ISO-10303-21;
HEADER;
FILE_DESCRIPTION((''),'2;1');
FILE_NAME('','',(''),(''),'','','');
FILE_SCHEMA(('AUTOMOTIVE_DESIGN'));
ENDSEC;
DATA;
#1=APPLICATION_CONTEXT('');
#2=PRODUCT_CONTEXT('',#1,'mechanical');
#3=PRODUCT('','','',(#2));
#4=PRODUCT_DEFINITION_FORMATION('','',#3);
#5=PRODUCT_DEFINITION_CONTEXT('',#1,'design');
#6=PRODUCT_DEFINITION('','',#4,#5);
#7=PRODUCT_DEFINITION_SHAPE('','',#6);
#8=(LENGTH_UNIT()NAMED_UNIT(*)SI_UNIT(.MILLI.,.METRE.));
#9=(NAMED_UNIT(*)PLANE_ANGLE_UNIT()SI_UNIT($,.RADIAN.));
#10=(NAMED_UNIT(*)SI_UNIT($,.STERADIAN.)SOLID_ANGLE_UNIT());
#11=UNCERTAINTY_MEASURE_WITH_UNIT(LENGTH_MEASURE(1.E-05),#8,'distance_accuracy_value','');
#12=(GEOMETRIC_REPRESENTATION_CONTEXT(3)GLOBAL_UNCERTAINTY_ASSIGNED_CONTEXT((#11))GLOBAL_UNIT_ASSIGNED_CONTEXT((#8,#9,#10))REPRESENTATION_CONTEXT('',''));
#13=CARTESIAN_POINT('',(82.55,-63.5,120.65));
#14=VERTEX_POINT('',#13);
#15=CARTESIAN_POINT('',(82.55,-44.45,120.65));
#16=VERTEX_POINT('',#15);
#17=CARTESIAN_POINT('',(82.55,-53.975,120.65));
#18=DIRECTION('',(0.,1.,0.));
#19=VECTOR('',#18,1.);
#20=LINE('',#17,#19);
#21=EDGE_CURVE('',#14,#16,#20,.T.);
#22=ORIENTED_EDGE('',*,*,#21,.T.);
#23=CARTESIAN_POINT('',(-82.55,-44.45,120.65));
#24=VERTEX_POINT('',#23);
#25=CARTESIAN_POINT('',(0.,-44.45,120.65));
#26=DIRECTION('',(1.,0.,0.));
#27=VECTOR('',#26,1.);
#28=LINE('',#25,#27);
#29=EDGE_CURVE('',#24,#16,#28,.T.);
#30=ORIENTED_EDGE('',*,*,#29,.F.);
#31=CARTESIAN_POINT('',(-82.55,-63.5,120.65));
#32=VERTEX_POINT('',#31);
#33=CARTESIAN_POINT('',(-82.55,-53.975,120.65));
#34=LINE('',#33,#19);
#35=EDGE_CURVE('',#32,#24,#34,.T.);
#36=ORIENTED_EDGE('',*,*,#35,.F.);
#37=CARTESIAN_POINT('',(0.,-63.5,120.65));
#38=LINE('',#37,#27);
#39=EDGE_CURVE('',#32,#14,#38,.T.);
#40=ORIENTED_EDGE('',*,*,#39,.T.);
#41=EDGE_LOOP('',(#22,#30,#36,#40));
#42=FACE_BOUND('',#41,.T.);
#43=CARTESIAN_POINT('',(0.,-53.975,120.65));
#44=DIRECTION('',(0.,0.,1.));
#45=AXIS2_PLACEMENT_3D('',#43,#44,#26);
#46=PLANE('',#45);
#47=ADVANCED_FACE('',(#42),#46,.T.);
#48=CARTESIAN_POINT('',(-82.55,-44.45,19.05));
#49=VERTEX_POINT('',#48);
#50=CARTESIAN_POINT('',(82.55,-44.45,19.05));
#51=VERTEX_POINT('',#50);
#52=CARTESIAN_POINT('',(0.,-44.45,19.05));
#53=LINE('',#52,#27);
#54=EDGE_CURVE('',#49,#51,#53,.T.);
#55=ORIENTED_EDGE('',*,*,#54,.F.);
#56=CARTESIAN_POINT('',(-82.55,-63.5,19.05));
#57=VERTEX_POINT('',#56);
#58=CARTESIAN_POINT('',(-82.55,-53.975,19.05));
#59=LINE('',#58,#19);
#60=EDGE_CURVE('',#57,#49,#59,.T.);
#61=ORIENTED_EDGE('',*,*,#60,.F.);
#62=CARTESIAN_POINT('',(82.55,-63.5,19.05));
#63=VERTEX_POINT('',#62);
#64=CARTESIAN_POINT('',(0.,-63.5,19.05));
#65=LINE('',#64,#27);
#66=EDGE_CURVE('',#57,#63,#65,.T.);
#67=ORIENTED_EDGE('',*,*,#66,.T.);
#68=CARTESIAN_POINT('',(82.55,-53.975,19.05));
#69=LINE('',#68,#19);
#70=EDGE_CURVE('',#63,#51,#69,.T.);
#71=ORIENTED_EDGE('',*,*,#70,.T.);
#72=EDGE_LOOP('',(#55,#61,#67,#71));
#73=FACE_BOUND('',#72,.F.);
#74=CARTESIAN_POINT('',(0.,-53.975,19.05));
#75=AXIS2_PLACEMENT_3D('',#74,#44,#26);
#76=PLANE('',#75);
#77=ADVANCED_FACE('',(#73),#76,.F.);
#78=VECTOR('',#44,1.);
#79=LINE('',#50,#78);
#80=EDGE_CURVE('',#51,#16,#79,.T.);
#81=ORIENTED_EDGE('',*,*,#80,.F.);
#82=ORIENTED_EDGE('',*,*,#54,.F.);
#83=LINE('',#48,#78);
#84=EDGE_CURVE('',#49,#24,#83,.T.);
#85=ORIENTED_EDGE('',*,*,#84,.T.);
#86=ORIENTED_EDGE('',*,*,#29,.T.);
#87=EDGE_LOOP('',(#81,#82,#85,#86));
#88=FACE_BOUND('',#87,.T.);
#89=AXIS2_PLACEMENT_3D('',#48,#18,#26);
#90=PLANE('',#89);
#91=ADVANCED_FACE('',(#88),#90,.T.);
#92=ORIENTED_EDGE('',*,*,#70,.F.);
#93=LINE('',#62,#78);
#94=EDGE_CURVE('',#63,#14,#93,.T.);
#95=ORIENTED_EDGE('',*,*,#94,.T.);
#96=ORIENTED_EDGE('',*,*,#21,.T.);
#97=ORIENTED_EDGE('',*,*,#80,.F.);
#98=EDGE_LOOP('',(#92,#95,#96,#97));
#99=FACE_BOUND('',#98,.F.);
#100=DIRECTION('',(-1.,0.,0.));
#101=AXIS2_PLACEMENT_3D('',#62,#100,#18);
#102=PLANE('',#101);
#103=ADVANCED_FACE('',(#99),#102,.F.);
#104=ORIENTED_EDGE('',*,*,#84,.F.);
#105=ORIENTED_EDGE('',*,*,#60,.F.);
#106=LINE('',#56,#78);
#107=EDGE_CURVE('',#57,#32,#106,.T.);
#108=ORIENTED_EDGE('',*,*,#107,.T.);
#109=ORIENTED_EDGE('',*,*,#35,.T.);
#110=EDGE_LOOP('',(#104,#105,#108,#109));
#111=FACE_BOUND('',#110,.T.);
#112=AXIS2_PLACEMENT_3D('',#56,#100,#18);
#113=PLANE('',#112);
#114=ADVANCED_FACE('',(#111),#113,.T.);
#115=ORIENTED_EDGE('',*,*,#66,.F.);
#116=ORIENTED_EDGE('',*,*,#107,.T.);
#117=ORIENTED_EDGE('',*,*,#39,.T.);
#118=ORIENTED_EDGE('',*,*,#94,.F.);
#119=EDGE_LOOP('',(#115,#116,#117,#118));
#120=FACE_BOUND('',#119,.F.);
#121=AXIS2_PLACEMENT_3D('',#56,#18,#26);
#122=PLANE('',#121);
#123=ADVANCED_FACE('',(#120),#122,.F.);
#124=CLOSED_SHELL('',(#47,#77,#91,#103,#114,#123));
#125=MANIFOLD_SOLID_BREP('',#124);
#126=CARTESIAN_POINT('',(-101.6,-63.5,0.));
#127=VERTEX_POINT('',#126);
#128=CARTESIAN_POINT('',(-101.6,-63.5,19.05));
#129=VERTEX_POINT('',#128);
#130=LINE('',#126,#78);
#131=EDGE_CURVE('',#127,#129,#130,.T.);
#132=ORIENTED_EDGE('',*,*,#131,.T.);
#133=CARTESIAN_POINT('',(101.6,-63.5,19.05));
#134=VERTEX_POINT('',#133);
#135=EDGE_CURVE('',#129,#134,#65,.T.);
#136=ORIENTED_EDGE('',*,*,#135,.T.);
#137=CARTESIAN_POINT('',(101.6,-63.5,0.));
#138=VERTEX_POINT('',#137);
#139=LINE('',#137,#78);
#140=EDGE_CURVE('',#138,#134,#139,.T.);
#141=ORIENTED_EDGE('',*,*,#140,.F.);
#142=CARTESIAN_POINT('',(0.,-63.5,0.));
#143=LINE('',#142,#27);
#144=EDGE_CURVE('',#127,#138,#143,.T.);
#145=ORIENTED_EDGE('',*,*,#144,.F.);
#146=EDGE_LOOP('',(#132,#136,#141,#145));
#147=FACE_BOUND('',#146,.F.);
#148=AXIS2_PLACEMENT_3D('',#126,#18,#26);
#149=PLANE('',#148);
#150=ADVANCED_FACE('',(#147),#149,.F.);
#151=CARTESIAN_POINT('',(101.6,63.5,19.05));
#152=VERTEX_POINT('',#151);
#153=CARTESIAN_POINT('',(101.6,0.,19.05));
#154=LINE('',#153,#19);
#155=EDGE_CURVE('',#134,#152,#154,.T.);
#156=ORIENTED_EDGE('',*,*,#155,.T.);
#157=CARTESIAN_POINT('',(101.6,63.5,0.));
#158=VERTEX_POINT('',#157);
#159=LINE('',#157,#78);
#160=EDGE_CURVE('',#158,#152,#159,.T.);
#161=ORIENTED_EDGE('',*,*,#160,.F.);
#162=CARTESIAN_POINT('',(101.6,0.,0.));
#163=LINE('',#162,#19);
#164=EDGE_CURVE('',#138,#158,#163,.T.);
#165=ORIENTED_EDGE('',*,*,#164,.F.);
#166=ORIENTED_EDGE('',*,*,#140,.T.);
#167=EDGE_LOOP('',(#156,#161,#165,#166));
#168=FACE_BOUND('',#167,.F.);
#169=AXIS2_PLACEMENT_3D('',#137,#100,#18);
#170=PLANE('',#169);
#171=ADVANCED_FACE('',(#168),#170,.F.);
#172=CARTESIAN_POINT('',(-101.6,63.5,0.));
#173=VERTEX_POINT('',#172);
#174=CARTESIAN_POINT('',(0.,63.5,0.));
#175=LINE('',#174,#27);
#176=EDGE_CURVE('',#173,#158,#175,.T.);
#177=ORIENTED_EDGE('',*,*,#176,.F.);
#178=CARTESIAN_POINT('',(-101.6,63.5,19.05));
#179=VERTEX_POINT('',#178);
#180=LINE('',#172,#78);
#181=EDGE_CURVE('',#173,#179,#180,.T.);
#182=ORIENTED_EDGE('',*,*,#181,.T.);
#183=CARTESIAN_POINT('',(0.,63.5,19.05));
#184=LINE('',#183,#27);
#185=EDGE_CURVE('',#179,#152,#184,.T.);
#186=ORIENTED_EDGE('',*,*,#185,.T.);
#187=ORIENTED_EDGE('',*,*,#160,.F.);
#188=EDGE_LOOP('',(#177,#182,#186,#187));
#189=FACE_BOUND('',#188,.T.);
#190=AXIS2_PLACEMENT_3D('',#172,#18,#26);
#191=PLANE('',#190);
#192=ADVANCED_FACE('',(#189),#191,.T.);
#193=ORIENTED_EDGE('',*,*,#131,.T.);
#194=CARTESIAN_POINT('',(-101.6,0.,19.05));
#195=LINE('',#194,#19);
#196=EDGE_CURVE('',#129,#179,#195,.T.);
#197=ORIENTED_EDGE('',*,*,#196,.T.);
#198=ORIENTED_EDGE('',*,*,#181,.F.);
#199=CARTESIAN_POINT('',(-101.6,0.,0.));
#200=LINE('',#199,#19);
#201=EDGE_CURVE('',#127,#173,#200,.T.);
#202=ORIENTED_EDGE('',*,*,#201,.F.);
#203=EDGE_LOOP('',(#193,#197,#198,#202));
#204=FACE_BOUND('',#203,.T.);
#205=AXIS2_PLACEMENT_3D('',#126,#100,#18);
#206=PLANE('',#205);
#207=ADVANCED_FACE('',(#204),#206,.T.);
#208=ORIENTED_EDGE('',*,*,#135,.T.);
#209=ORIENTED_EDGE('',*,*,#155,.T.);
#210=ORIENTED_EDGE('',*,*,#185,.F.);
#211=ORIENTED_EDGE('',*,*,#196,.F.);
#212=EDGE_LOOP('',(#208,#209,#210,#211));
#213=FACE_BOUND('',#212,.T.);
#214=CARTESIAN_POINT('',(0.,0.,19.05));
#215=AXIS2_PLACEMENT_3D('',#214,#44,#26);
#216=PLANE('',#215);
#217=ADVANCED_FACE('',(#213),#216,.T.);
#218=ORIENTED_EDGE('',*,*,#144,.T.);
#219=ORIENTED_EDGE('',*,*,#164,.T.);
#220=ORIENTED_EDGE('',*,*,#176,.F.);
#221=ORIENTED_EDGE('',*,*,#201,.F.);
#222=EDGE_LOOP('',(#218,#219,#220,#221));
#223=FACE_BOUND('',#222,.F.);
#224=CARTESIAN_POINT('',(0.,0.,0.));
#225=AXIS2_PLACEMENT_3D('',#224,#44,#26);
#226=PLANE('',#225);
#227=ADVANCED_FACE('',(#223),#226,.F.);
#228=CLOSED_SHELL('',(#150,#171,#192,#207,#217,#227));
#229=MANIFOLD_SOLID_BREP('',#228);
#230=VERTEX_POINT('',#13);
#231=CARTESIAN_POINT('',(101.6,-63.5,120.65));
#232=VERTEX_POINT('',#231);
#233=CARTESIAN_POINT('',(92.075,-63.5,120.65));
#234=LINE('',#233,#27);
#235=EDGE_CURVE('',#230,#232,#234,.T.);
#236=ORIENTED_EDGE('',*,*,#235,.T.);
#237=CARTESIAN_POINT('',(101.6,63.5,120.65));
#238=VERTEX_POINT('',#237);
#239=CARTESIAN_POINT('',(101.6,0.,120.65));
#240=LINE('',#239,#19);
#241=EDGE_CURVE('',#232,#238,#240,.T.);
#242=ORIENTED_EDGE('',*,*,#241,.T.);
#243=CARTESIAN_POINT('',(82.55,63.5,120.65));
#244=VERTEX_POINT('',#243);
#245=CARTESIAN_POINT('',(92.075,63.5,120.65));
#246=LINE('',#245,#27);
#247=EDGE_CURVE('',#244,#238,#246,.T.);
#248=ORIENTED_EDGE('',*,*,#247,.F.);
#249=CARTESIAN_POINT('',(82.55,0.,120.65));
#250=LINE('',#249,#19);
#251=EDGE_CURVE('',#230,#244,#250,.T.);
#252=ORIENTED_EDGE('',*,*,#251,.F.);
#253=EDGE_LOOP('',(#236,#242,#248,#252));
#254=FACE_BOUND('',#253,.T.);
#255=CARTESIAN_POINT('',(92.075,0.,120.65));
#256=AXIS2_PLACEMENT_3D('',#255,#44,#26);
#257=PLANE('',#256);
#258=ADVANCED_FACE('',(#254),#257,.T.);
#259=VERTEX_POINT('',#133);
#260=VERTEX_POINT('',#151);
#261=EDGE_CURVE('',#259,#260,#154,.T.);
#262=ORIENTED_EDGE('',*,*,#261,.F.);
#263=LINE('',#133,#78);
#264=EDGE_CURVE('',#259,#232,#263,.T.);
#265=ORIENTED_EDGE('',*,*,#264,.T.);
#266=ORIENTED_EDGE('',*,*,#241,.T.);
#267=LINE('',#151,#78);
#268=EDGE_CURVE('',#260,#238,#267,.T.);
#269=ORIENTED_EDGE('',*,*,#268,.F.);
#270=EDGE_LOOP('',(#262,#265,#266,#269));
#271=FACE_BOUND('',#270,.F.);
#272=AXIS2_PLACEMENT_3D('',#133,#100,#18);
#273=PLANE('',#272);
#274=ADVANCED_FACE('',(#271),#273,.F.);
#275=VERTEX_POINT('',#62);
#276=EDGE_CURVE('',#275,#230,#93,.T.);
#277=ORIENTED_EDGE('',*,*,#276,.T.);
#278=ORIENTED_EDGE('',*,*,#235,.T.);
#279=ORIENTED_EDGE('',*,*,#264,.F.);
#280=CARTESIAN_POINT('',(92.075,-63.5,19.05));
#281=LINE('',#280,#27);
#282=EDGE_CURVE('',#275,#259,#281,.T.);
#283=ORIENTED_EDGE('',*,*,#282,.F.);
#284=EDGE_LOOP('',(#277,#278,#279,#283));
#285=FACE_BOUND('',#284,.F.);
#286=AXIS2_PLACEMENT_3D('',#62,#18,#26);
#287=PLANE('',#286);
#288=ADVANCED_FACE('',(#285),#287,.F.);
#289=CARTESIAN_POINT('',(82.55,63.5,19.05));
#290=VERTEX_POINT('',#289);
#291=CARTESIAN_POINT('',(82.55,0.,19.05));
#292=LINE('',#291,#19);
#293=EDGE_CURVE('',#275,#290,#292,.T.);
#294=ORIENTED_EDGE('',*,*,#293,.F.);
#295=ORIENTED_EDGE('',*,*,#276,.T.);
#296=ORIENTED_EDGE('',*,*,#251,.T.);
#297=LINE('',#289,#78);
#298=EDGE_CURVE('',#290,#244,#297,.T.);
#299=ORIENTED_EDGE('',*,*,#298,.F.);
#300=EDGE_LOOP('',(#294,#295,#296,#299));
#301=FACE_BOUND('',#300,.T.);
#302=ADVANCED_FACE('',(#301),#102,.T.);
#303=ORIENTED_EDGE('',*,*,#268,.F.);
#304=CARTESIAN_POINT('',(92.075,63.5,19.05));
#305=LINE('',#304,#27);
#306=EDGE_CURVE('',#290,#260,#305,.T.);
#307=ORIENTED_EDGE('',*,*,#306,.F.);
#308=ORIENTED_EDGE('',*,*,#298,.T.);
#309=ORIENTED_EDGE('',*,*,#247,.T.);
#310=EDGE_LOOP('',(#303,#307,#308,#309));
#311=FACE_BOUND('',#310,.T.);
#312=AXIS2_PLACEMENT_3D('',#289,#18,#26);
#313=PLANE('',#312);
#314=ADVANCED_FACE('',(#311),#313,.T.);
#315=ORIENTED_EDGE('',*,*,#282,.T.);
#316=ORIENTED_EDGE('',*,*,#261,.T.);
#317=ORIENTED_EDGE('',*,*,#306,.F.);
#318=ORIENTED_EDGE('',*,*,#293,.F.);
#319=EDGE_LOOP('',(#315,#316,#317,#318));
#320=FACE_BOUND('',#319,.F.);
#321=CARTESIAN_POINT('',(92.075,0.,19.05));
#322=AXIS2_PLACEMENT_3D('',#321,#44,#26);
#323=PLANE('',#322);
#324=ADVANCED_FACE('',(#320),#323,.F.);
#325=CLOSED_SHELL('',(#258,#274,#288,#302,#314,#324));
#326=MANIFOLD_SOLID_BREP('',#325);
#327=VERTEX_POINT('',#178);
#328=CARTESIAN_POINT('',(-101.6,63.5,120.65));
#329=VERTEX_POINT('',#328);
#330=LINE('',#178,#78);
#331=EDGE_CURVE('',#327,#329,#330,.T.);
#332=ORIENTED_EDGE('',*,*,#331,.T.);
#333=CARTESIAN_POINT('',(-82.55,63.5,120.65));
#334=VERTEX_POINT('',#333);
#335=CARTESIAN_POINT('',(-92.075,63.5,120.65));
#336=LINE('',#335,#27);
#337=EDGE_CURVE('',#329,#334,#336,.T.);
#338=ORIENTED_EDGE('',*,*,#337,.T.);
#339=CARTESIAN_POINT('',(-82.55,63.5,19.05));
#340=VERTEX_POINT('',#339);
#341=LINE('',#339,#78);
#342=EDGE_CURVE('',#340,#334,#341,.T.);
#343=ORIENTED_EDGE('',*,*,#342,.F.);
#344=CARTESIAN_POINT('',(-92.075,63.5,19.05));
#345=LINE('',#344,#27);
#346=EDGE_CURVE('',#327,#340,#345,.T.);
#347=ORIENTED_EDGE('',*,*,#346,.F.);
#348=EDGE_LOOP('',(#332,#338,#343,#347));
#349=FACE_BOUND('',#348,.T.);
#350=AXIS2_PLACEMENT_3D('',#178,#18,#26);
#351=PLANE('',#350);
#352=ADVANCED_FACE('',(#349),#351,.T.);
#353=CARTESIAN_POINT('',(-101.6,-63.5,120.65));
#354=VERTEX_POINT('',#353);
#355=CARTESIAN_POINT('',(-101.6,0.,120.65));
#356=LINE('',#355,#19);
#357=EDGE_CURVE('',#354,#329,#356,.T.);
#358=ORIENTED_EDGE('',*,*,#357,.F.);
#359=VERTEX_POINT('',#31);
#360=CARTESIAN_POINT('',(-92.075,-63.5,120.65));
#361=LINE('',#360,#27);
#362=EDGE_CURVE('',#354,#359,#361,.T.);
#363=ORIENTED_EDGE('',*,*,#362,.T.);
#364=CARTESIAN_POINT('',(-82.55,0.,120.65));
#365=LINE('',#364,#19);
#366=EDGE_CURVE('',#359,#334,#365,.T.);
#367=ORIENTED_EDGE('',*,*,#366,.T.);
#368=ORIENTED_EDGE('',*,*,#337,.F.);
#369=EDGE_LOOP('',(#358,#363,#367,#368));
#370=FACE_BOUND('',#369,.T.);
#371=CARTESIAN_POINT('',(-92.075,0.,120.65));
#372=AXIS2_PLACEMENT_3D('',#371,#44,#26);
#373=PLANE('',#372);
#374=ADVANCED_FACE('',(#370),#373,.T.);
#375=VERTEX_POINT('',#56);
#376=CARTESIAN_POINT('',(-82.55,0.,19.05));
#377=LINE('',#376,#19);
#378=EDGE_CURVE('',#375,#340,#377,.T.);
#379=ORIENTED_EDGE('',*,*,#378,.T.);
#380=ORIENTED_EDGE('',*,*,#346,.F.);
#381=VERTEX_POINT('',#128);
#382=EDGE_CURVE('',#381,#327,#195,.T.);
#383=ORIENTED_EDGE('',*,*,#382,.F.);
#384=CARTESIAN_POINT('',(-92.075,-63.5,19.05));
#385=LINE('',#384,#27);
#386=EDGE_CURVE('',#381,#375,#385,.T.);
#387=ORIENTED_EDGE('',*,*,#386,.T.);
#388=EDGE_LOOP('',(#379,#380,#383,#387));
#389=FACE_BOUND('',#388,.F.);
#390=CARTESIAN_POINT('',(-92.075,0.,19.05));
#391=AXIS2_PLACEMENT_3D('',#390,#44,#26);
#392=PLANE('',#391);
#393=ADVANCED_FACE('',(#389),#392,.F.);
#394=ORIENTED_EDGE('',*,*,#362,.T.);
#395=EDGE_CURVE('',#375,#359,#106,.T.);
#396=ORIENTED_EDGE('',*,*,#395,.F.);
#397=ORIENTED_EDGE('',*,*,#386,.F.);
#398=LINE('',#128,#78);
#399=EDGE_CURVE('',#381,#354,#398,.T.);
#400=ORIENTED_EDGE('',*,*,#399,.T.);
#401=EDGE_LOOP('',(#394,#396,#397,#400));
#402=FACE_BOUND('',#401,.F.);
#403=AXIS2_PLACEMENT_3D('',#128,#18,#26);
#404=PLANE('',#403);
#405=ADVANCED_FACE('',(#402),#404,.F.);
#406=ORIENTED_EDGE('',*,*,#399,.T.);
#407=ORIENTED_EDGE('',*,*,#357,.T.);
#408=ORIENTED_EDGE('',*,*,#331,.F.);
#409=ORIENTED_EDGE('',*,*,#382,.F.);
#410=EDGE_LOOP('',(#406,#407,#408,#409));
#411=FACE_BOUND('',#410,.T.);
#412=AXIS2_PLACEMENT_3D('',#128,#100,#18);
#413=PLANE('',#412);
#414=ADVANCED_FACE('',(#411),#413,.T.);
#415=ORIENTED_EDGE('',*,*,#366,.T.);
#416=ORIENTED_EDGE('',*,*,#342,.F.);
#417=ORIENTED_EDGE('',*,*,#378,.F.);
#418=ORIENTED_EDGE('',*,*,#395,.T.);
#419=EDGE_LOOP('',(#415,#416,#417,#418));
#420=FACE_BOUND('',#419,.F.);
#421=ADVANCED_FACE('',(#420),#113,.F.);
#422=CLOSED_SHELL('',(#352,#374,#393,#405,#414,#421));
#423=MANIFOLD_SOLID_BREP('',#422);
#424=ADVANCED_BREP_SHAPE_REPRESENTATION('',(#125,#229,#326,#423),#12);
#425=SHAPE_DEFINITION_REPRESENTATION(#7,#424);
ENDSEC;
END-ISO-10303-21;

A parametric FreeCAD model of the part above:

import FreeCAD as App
import Part
import Sketcher
Q = App.Units.Quantity


def add_polygon(sketch, points):
    """Adds a closed chain of lines whose ends are joined by coincident constraints."""
    first, n = sketch.GeometryCount, len(points)
    for a, b in zip(points, points[1:] + points[:1]):
        sketch.addGeometry(Part.LineSegment(App.Vector(*a, 0), App.Vector(*b, 0)), False)
    for i in range(n):
        sketch.addConstraint(Sketcher.Constraint("Coincident", first + i, 2, first + (i + 1) % n, 1))

doc = App.newDocument("Part")
params = doc.addObject("Spreadsheet::Sheet", "Params")
for row, (alias, value) in enumerate([
    ("sketch1_width", "8 in"),
    ("sketch1_height", "5 in"),
    ("pad1_length", "0.75 in"),
    ("sketch2_height", "5 in"),
    ("sketch2_width", "0.75 in"),
    ("pad2_length", "4 in"),
    ("sketch3_width", "6.5 in"),
    ("sketch3_height", "0.75 in"),
    ("pad3_length", "4 in"),
], start=1):
    params.set(f"A{row}", alias)
    params.set(f"B{row}", "=" + value)
    params.setAlias(f"B{row}", alias)

body = doc.addObject("PartDesign::Body", "Body")

# Sketch on XY plane
sketch1 = body.newObject("Sketcher::SketchObject", "Sketch")
sketch1.AttachmentSupport = (doc.getObject("XY_Plane"), [""])
sketch1.MapMode = "FlatFace"
add_polygon(sketch1, [(-102, 64), (-102, -64), (102, -64), (102, 64)])  # lines 0-3
sketch1.addConstraint([
    Sketcher.Constraint("Vertical", 0),
    Sketcher.Constraint("Horizontal", 1),
    Sketcher.Constraint("Vertical", 2),
    Sketcher.Constraint("Horizontal", 3),
    Sketcher.Constraint("Symmetric", 0, 2, 2, 2, -1, 1),
    Sketcher.Constraint("DistanceX", 1, 1, 1, 2, Q("8 in")),
    Sketcher.Constraint("DistanceY", 0, 2, 0, 1, Q("5 in")),
])
sketch1.setExpression("Constraints[9]", "Params.sketch1_width")
sketch1.setExpression("Constraints[10]", "Params.sketch1_height")
pad1 = body.newObject("PartDesign::Pad", "Pad")
pad1.Profile = sketch1
pad1.setExpression("Length", "Params.pad1_length")
body2 = doc.addObject("PartDesign::Body", "Body001")
body2.AllowCompound = True

# Sketch on XY plane
sketch2 = body2.newObject("Sketcher::SketchObject", "Sketch001")
sketch2.AttachmentSupport = (doc.getObject("XY_Plane001"), [""])
sketch2.MapMode = "FlatFace"
sketch2.AttachmentOffset = App.Placement(App.Vector(0, 0, 0.75 * 25.4), App.Rotation())
add_polygon(sketch2, [(-102, 64), (-102, -64), (-83, -64), (-83, 64)])  # lines 0-3
add_polygon(sketch2, [(83, 64), (83, -64), (102, -64), (102, 64)])  # lines 4-7
sketch2.addConstraint([
    Sketcher.Constraint("Vertical", 0),
    Sketcher.Constraint("Horizontal", 1),
    Sketcher.Constraint("Vertical", 2),
    Sketcher.Constraint("Horizontal", 3),
    Sketcher.Constraint("Vertical", 4),
    Sketcher.Constraint("Horizontal", 5),
    Sketcher.Constraint("Vertical", 6),
    Sketcher.Constraint("Horizontal", 7),
    Sketcher.Constraint("Symmetric", 2, 2, 4, 2, -1, 1),
    Sketcher.Constraint("Symmetric", 0, 2, 6, 2, -1, 1),
    Sketcher.Constraint("Horizontal", 1, 2, 4, 2),
    Sketcher.Constraint("DistanceY", 0, 2, 0, 1, Q("5 in")),
    Sketcher.Constraint("DistanceX", 0, 2, -1, 1, Q("4 in")),
    Sketcher.Constraint("DistanceX", 1, 1, 1, 2, Q("0.75 in")),
])
sketch2.setExpression("Constraints[19]", "Params.sketch2_height")
sketch2.setExpression("Constraints[21]", "Params.sketch2_width")
pad2 = body2.newObject("PartDesign::Pad", "Pad001")
pad2.Profile = sketch2
pad2.setExpression("Length", "Params.pad2_length")
body3 = doc.addObject("PartDesign::Body", "Body002")

# Sketch on XY plane
sketch3 = body3.newObject("Sketcher::SketchObject", "Sketch002")
sketch3.AttachmentSupport = (doc.getObject("XY_Plane002"), [""])
sketch3.MapMode = "FlatFace"
sketch3.AttachmentOffset = App.Placement(App.Vector(0, 0, 0.75 * 25.4), App.Rotation())
add_polygon(sketch3, [(-83, -44), (-83, -64), (83, -64), (83, -44)])  # lines 0-3
sketch3.addConstraint([
    Sketcher.Constraint("Vertical", 0),
    Sketcher.Constraint("Horizontal", 1),
    Sketcher.Constraint("Vertical", 2),
    Sketcher.Constraint("Horizontal", 3),
    Sketcher.Constraint("DistanceX", 1, 1, 1, 2, Q("6.5 in")),
    Sketcher.Constraint("DistanceY", 0, 2, 0, 1, Q("0.75 in")),
    Sketcher.Constraint("DistanceY", 0, 2, -1, 1, Q("2.5 in")),
    Sketcher.Constraint("DistanceX", 0, 2, -1, 1, Q("3.25 in")),
])
sketch3.setExpression("Constraints[8]", "Params.sketch3_width")
sketch3.setExpression("Constraints[9]", "Params.sketch3_height")
pad3 = body3.newObject("PartDesign::Pad", "Pad002")
pad3.Profile = sketch3
pad3.setExpression("Length", "Params.pad3_length")

doc.recompute()
